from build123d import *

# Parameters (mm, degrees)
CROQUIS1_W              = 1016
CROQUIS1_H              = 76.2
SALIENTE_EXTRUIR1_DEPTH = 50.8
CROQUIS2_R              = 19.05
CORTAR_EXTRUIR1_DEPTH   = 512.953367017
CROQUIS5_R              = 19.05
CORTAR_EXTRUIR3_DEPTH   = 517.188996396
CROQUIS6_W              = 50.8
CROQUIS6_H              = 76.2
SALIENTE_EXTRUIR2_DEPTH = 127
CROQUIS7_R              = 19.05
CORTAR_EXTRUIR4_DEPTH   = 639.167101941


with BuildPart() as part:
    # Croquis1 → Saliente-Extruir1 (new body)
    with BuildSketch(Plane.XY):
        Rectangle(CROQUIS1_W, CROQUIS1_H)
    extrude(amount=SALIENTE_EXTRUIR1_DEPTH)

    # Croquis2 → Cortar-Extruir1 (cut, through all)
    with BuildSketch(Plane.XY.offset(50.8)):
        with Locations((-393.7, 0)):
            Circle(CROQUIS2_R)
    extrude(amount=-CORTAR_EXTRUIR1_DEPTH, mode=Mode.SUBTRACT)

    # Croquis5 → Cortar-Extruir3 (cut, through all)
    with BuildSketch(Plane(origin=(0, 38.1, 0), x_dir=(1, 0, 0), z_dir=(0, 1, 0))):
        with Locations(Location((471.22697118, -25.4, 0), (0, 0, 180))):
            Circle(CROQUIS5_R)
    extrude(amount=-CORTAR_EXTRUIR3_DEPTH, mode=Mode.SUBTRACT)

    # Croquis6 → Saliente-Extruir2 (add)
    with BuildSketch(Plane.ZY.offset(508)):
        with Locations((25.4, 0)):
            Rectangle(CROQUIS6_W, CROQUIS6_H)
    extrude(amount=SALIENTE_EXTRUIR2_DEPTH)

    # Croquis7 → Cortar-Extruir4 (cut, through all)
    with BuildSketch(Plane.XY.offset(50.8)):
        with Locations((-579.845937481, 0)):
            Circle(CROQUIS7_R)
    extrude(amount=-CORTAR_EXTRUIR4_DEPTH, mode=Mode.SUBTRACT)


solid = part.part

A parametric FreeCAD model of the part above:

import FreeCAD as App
import Part
import Sketcher
Q = App.Units.Quantity


def add_polygon(sketch, points):
    """Adds a closed chain of lines whose ends are joined by coincident constraints."""
    first, n = sketch.GeometryCount, len(points)
    for a, b in zip(points, points[1:] + points[:1]):
        sketch.addGeometry(Part.LineSegment(App.Vector(*a, 0), App.Vector(*b, 0)), False)
    for i in range(n):
        sketch.addConstraint(Sketcher.Constraint("Coincident", first + i, 2, first + (i + 1) % n, 1))

doc = App.newDocument("Part")
body = doc.addObject("PartDesign::Body", "Body")

sketch1 = doc.addObject("Sketcher::SketchObject", "Sketch")
body.addObject(sketch1)
sketch1.AttachmentSupport = (doc.XY_Plane, [""])
sketch1.MapMode = "FlatFace"
add_polygon(sketch1, [(-508, 38.1), (-508, -38.1), (508, -38.1), (508, 38.1)])
sketch1.addConstraint(Sketcher.Constraint("Vertical", 0))
sketch1.addConstraint(Sketcher.Constraint("Horizontal", 1))
sketch1.addConstraint(Sketcher.Constraint("Vertical", 2))
sketch1.addConstraint(Sketcher.Constraint("Horizontal", 3))
sketch1.addConstraint(Sketcher.Constraint("Symmetric", 0, 2, 2, 2, -1, 1))
sketch1.addConstraint(Sketcher.Constraint("DistanceX", 1, 1, 1, 2, Q("40 in")))
sketch1.addConstraint(Sketcher.Constraint("DistanceY", 0, 2, 0, 1, Q("3 in")))
pad1 = doc.addObject("PartDesign::Pad", "Pad")
body.addObject(pad1)
pad1.Profile = sketch1
pad1.Length = Q("2 in")

sketch2 = doc.addObject("Sketcher::SketchObject", "Sketch001")
body.addObject(sketch2)
sketch2.AttachmentSupport = (doc.XY_Plane, [""])
sketch2.MapMode = "FlatFace"
sketch2.AttachmentOffset = App.Placement(App.Vector(0, 0, 2 * 25.4), App.Rotation())
sketch2.addGeometry(Part.Circle(App.Vector(-393.7, 0, 0), App.Vector(0, 0, 1), 19.05), False)
sketch2.addConstraint(Sketcher.Constraint("PointOnObject", 0, 3, -1))
sketch2.addConstraint(Sketcher.Constraint("Diameter", 0, Q("1.5 in")))
sketch2.addConstraint(Sketcher.Constraint("DistanceX", 0, 3, -1, 1, Q("15.5 in")))
pocket1 = doc.addObject("PartDesign::Pocket", "Pocket")
body.addObject(pocket1)
pocket1.Profile = sketch2
pocket1.Type = "ThroughAll"

sketch3 = doc.addObject("Sketcher::SketchObject", "Sketch002")
body.addObject(sketch3)
sketch3.AttachmentSupport = (doc.XZ_Plane, [""])
sketch3.MapMode = "FlatFace"
sketch3.AttachmentOffset = App.Placement(App.Vector(0, 0, -1.5 * 25.4), App.Rotation())
sketch3.addGeometry(Part.Circle(App.Vector(471.226971, 25.4, 0), App.Vector(0, 0, 1), 19.05), False)
sketch3.addConstraint(Sketcher.Constraint("Diameter", 0, Q("1.5 in")))
sketch3.addConstraint(Sketcher.Constraint("DistanceY", -1, 1, 0, 3, Q("1 in")))
sketch3.addConstraint(Sketcher.Constraint("DistanceX", -1, 1, 0, 3, Q("471.226971 mm")))
pocket2 = doc.addObject("PartDesign::Pocket", "Pocket001")
body.addObject(pocket2)
pocket2.Profile = sketch3
pocket2.Type = "ThroughAll"
pocket2.Reversed = True

sketch4 = doc.addObject("Sketcher::SketchObject", "Sketch003")
body.addObject(sketch4)
sketch4.AttachmentSupport = (doc.YZ_Plane, [""])
sketch4.MapMode = "FlatFace"
sketch4.AttachmentOffset = App.Placement(App.Vector(0, 0, -20 * 25.4), App.Rotation())
add_polygon(sketch4, [(38.1, 0), (-38.1, 0), (-38.1, 50.8), (38.1, 50.8)])
sketch4.addConstraint(Sketcher.Constraint("Horizontal", 0))
sketch4.addConstraint(Sketcher.Constraint("Vertical", 1))
sketch4.addConstraint(Sketcher.Constraint("Horizontal", 2))
sketch4.addConstraint(Sketcher.Constraint("Vertical", 3))
sketch4.addConstraint(Sketcher.Constraint("Symmetric", 0, 2, 3, 2, -1, 1))
sketch4.addConstraint(Sketcher.Constraint("DistanceX", 0, 2, 0, 1, Q("3 in")))
sketch4.addConstraint(Sketcher.Constraint("DistanceY", 1, 1, 1, 2, Q("2 in")))
pad2 = doc.addObject("PartDesign::Pad", "Pad001")
body.addObject(pad2)
pad2.Profile = sketch4
pad2.Length = Q("5 in")
pad2.Reversed = True

sketch5 = doc.addObject("Sketcher::SketchObject", "Sketch004")
body.addObject(sketch5)
sketch5.AttachmentSupport = (doc.XY_Plane, [""])
sketch5.MapMode = "FlatFace"
sketch5.AttachmentOffset = App.Placement(App.Vector(0, 0, 2 * 25.4), App.Rotation())
sketch5.addGeometry(Part.Circle(App.Vector(-579.845937, 0, 0), App.Vector(0, 0, 1), 19.05), False)
sketch5.addConstraint(Sketcher.Constraint("PointOnObject", 0, 3, -1))
sketch5.addConstraint(Sketcher.Constraint("Diameter", 0, Q("1.5 in")))
sketch5.addConstraint(Sketcher.Constraint("DistanceX", 0, 3, -1, 1, Q("579.845937 mm")))
pocket3 = doc.addObject("PartDesign::Pocket", "Pocket002")
body.addObject(pocket3)
pocket3.Profile = sketch5
pocket3.Type = "ThroughAll"

doc.recompute()
